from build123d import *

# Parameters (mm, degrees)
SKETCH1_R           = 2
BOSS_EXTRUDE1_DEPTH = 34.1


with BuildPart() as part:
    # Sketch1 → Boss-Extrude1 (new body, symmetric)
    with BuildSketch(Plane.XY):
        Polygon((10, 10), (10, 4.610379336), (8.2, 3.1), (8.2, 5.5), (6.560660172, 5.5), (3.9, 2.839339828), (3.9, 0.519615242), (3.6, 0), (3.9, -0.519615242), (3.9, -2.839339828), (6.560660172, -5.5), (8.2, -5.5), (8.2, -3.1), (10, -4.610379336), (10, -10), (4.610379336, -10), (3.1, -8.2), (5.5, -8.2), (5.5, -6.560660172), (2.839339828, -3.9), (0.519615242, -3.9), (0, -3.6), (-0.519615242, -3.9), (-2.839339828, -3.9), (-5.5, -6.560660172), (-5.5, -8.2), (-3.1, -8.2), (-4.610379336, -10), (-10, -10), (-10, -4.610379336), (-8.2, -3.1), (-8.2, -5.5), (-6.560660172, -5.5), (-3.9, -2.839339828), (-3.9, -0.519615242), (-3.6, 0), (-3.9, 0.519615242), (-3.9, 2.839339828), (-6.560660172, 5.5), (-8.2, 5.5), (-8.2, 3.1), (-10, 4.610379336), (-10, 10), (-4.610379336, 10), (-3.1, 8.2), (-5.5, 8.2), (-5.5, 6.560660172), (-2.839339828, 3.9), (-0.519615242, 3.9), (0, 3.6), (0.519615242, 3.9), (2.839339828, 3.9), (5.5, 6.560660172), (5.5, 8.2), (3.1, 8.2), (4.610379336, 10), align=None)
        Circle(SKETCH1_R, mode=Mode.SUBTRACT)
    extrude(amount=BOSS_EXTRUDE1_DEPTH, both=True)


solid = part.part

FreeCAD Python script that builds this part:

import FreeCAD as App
import Part
import Sketcher
Q = App.Units.Quantity


def add_polygon(sketch, points):
    """Adds a closed chain of lines whose ends are joined by coincident constraints."""
    first, n = sketch.GeometryCount, len(points)
    for a, b in zip(points, points[1:] + points[:1]):
        sketch.addGeometry(Part.LineSegment(App.Vector(*a, 0), App.Vector(*b, 0)), False)
    for i in range(n):
        sketch.addConstraint(Sketcher.Constraint("Coincident", first + i, 2, first + (i + 1) % n, 1))

doc = App.newDocument("Part")
body = doc.addObject("PartDesign::Body", "Body")

# Sketch on XY plane
sketch1 = body.newObject("Sketcher::SketchObject", "Sketch")
sketch1.AttachmentSupport = (doc.getObject("XY_Plane"), [""])
sketch1.MapMode = "FlatFace"
add_polygon(sketch1, [(10, 4.610379), (10, 10), (4.610379, 10), (3.1, 8.2), (5.5, 8.2), (5.5, 6.56066), (2.83934, 3.9), (0.519615, 3.9), (0, 3.6), (-0.519615, 3.9), (-2.83934, 3.9), (-5.5, 6.56066), (-5.5, 8.2), (-3.1, 8.2), (-4.610379, 10), (-10, 10), (-10, 4.610379), (-8.2, 3.1), (-8.2, 5.5), (-6.56066, 5.5), (-3.9, 2.83934), (-3.9, 0.519615), (-3.6, 0), (-3.9, -0.519615), (-3.9, -2.83934), (-6.56066, -5.5), (-8.2, -5.5), (-8.2, -3.1), (-10, -4.610379), (-10, -10), (-4.610379, -10), (-3.1, -8.2), (-5.5, -8.2), (-5.5, -6.56066), (-2.83934, -3.9), (-0.519615, -3.9), (0, -3.6), (0.519615, -3.9), (2.83934, -3.9), (5.5, -6.56066), (5.5, -8.2), (3.1, -8.2), (4.610379, -10), (10, -10), (10, -4.610379), (8.2, -3.1), (8.2, -5.5), (6.56066, -5.5), (3.9, -2.83934), (3.9, -0.519615), (3.6, 0), (3.9, 0.519615), (3.9, 2.83934), (6.56066, 5.5), (8.2, 5.5), (8.2, 3.1)])  # lines 0-55
sketch1.addGeometry(Part.Circle(App.Vector(0, 0, 0), App.Vector(0, 0, 1), 2), False)  # 56
sketch1.addConstraint([
    Sketcher.Constraint("Vertical", 0),
    Sketcher.Constraint("Horizontal", 1),
    Sketcher.Constraint("Horizontal", 3),
    Sketcher.Constraint("Vertical", 4),
    Sketcher.Constraint("Horizontal", 6),
    Sketcher.Constraint("Horizontal", 9),
    Sketcher.Constraint("Vertical", 11),
    Sketcher.Constraint("Horizontal", 12),
    Sketcher.Constraint("Horizontal", 14),
    Sketcher.Constraint("Vertical", 15),
    Sketcher.Constraint("Vertical", 17),
    Sketcher.Constraint("Horizontal", 18),
    Sketcher.Constraint("Vertical", 20),
    Sketcher.Constraint("Vertical", 23),
    Sketcher.Constraint("Horizontal", 25),
    Sketcher.Constraint("Vertical", 26),
    Sketcher.Constraint("Vertical", 28),
    Sketcher.Constraint("Horizontal", 29),
    Sketcher.Constraint("Horizontal", 31),
    Sketcher.Constraint("Vertical", 32),
    Sketcher.Constraint("Horizontal", 34),
    Sketcher.Constraint("Horizontal", 37),
    Sketcher.Constraint("Vertical", 39),
    Sketcher.Constraint("Horizontal", 40),
    Sketcher.Constraint("Horizontal", 42),
    Sketcher.Constraint("Vertical", 43),
    Sketcher.Constraint("Vertical", 45),
    Sketcher.Constraint("Horizontal", 46),
    Sketcher.Constraint("Vertical", 48),
    Sketcher.Constraint("Vertical", 51),
    Sketcher.Constraint("Horizontal", 53),
    Sketcher.Constraint("Vertical", 54),
    Sketcher.Constraint("Coincident", 56, 3, -1, 1),
    Sketcher.Constraint("Symmetric", 0, 2, 28, 2, -1, 1),
    Sketcher.Constraint("Symmetric", 2, 2, 30, 2, -1, 1),
    Sketcher.Constraint("Symmetric", 4, 2, 32, 2, -1, 1),
    Sketcher.Constraint("Symmetric", 5, 2, 33, 2, -1, 1),
    Sketcher.Constraint("Symmetric", 7, 2, 35, 2, -1, 1),
    Sketcher.Constraint("Symmetric", 8, 2, 36, 2, -1, 1),
    Sketcher.Constraint("Symmetric", 10, 2, 38, 2, -1, 1),
    Sketcher.Constraint("Symmetric", 12, 2, 40, 2, -1, 1),
    Sketcher.Constraint("Symmetric", 13, 2, 41, 2, -1, 1),
    Sketcher.Constraint("Symmetric", 15, 2, 43, 2, -1, 1),
    Sketcher.Constraint("Symmetric", 16, 2, 44, 2, -1, 1),
    Sketcher.Constraint("Symmetric", 18, 2, 46, 2, -1, 1),
    Sketcher.Constraint("Symmetric", 19, 2, 47, 2, -1, 1),
    Sketcher.Constraint("Symmetric", 21, 2, 49, 2, -1, 1),
    Sketcher.Constraint("Symmetric", 22, 2, 50, 2, -1, 1),
    Sketcher.Constraint("Symmetric", 24, 2, 52, 2, -1, 1),
    Sketcher.Constraint("Symmetric", 26, 2, 54, 2, -1, 1),
    Sketcher.Constraint("Symmetric", 6, 2, 8, 2, -2),
    Sketcher.Constraint("Symmetric", 4, 2, 10, 2, -2),
    Sketcher.Constraint("Symmetric", 2, 2, 12, 2, -2),
    Sketcher.Constraint("Symmetric", 1, 2, 13, 2, -2),
    Sketcher.Constraint("Symmetric", 27, 2, 43, 2, -2),
    Sketcher.Constraint("Symmetric", 26, 2, 44, 2, -2),
    Sketcher.Constraint("Symmetric", 24, 2, 46, 2, -2),
    Sketcher.Constraint("Symmetric", 23, 2, 47, 2, -2),
    Sketcher.Constraint("PointOnObject", 7, 2, -2),
    Sketcher.Constraint("PointOnObject", 21, 2, -1),
    Sketcher.Constraint("Perpendicular", 5, 10),
    Sketcher.Constraint("Perpendicular", 2, 16),
    Sketcher.Constraint("Parallel", 10, 19),
    Sketcher.Constraint("Perpendicular", 7, 21),
    Sketcher.Constraint("Perpendicular", 8, 22),
    Sketcher.Constraint("Perpendicular", 19, 24),
    Sketcher.Constraint("Perpendicular", 16, 30),
    Sketcher.Constraint("Perpendicular", 21, 35),
    Sketcher.Constraint("Perpendicular", 33, 38),
    Sketcher.Constraint("Perpendicular", 35, 49),
    Sketcher.Constraint("Perpendicular", 47, 52),
    Sketcher.Constraint("Perpendicular", 41, 55),
    Sketcher.Constraint("Equal", 42, 0),
    Sketcher.Constraint("Equal", 53, 4),
    Sketcher.Constraint("Equal", 40, 17),
    Sketcher.Constraint("Equal", 37, 20),
    Sketcher.Constraint("Equal", 13, 16),
    Sketcher.Constraint("Equal", 10, 19),
    Sketcher.Constraint("Equal", 8, 21),
    Sketcher.Constraint("Diameter", 56, 4.0),
    Sketcher.Constraint("Angle", 2, Q("-130 deg")),
    Sketcher.Constraint("Angle", 7, Q("-150 deg")),
    Sketcher.Constraint("DistanceX", 3, 1, 3, 2, 2.4),
    Sketcher.Constraint("DistanceX", -1, 1, 0, 2, 10.0),
    Sketcher.Constraint("Distance", 7, 0.6),
    Sketcher.Constraint("DistanceX", -1, 1, 2, 2, 3.1),
    Sketcher.Constraint("DistanceY", -1, 1, 2, 2, 8.2),
    Sketcher.Constraint("DistanceY", -1, 1, 5, 2, 3.9),
    Sketcher.Constraint("DistanceX", 18, 1, 18, 2, 1.63934),
])
pad1 = body.newObject("PartDesign::Pad", "Pad")
pad1.Profile = sketch1
pad1.Length = 68.2
pad1.Midplane = True

doc.recompute()
